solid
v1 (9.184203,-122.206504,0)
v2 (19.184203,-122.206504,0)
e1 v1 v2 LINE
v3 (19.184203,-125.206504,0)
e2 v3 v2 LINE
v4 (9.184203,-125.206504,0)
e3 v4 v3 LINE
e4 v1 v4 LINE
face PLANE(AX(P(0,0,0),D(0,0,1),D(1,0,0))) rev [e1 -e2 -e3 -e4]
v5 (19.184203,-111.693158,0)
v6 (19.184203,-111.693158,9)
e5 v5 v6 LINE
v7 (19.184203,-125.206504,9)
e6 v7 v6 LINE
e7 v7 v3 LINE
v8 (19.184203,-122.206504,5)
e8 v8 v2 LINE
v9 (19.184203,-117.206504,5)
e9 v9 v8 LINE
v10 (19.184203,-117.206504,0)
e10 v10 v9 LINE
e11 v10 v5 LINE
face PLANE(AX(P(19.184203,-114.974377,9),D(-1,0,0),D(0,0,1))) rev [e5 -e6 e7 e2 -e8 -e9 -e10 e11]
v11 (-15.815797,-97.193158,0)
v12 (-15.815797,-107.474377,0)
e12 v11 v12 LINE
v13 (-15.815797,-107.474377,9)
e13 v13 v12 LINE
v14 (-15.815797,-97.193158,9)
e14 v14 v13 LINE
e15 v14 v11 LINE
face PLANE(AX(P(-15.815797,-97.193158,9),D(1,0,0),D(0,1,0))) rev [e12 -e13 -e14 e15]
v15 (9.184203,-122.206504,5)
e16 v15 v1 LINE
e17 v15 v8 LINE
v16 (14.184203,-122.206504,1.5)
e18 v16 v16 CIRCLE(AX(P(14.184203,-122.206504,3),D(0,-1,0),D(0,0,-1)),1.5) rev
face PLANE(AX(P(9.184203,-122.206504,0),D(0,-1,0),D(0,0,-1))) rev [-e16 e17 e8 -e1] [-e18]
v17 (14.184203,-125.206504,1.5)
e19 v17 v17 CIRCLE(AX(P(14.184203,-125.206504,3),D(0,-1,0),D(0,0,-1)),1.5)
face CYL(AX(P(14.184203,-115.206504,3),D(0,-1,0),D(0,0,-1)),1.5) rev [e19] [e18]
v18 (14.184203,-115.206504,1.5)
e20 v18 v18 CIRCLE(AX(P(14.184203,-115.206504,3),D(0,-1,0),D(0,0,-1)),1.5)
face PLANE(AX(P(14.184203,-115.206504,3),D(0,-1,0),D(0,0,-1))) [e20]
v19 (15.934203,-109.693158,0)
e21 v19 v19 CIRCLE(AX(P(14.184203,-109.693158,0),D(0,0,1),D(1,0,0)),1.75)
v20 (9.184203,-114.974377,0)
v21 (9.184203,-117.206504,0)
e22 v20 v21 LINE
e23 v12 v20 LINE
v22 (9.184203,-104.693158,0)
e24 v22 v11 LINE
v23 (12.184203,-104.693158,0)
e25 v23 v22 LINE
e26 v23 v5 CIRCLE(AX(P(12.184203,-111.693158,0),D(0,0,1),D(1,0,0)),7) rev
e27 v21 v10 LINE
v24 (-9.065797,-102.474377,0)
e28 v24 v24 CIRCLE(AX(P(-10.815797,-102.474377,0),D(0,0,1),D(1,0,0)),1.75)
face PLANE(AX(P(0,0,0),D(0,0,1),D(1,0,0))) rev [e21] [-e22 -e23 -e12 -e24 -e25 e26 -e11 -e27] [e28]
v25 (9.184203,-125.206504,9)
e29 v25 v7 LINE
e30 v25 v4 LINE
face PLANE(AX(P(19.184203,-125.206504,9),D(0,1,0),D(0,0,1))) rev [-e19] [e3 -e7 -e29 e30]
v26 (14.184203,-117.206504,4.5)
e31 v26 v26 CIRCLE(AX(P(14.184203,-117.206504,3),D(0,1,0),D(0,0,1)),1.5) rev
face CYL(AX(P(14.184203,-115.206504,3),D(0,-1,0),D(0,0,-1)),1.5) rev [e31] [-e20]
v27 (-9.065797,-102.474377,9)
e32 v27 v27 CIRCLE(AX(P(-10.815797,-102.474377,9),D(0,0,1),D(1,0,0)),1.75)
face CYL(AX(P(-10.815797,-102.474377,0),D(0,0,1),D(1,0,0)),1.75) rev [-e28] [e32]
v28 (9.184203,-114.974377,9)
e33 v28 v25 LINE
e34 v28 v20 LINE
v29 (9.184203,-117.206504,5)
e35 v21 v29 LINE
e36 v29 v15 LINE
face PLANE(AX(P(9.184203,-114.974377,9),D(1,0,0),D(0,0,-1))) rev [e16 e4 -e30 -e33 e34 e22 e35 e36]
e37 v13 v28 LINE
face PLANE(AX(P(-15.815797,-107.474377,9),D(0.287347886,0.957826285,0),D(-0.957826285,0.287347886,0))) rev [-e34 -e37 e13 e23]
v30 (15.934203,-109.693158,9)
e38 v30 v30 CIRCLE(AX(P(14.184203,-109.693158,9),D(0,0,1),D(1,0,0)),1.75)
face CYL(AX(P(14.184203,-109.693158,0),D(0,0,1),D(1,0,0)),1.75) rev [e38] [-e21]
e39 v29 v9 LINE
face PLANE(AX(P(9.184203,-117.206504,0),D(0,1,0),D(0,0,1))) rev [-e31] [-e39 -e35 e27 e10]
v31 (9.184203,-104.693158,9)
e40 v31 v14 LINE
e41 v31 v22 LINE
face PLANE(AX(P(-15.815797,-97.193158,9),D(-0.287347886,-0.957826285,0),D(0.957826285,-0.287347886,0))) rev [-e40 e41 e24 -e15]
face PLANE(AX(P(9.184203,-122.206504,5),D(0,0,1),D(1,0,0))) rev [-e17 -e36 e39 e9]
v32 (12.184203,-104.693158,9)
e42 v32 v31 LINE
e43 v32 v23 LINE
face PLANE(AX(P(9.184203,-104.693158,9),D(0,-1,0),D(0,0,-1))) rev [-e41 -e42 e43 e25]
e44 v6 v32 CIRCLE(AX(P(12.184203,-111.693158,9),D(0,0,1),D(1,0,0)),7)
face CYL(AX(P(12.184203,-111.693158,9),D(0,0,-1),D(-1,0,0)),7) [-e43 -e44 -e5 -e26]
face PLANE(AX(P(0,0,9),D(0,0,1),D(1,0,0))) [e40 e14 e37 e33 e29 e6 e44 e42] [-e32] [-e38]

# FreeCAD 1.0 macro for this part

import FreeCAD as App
import Part
import Sketcher
from FreeCAD import Vector


def edges_at(feature, points):
    """Names of the edges that pass closest to the given points."""
    edges = feature.Shape.Edges
    near = lambda p: min(range(len(edges)), key=lambda i: edges[i].distToShape(Part.Vertex(*p))[0])
    return sorted({f"Edge{near(p) + 1}" for p in points})


def add_polygon(sketch, points):
    """Adds a closed chain of lines whose ends are joined by coincident constraints."""
    first, n = sketch.GeometryCount, len(points)
    for a, b in zip(points, points[1:] + points[:1]):
        sketch.addGeometry(Part.LineSegment(App.Vector(*a, 0), App.Vector(*b, 0)), False)
    for i in range(n):
        sketch.addConstraint(Sketcher.Constraint("Coincident", first + i, 2, first + (i + 1) % n, 1))

doc = App.newDocument("Part")
body = doc.addObject("PartDesign::Body", "Body")

# Sketch on XY plane
sketch1 = doc.addObject("Sketcher::SketchObject", "Sketch")
body.addObject(sketch1)
sketch1.AttachmentSupport = (doc.XY_Plane, [""])
sketch1.MapMode = "FlatFace"
add_polygon(sketch1, [(-16, -97), (-16, -107), (9, -115), (9, -125), (19, -125), (19, -105), (9, -105)])  # lines 0-6
sketch1.addConstraint([
    Sketcher.Constraint("Vertical", 0),
    Sketcher.Constraint("Vertical", 2),
    Sketcher.Constraint("Horizontal", 3),
    Sketcher.Constraint("Vertical", 4),
    Sketcher.Constraint("Horizontal", 5),
    Sketcher.Constraint("Parallel", 1, 6),
    Sketcher.Constraint("Vertical", 2, 2, 5, 2),
    Sketcher.Constraint("DistanceX", 3, 1, 3, 2, 10.0),
    Sketcher.Constraint("DistanceX", 0, 2, 1, 2, 25.0),
    Sketcher.Constraint("DistanceY", 1, 2, 0, 2, 7.5),
    Sketcher.Constraint("DistanceY", 0, 2, 0, 1, 10.281219),
    Sketcher.Constraint("DistanceY", 2, 2, 2, 1, 10.232127),
    Sketcher.Constraint("DistanceX", 0, 2, -1, 1, 15.815797),
    Sketcher.Constraint("DistanceY", 0, 2, -1, 1, 107.474377),
])
pad1 = doc.addObject("PartDesign::Pad", "Pad")
body.addObject(pad1)
pad1.Profile = sketch1
pad1.Length = 9

# Sketch on XY plane
sketch2 = doc.addObject("Sketcher::SketchObject", "Sketch001")
body.addObject(sketch2)
sketch2.AttachmentSupport = (doc.XY_Plane, [""])
sketch2.MapMode = "FlatFace"
sketch2.AttachmentOffset = App.Placement(Vector(0, 0, 9), App.Rotation())
sketch2.addGeometry([
    Part.Circle(Vector(14.2, -109.7, 0), Vector(0, 0, 1), 1.8),
    Part.Circle(Vector(-10.8, -102.5, 0), Vector(0, 0, 1), 1.8),
], False)
sketch2.addConstraint([
    Sketcher.Constraint("Equal", 0, 1),
    Sketcher.Constraint("Diameter", 0, 3.5),
    Sketcher.Constraint("DistanceX", 1, 3, 0, 3, 25.0),
    Sketcher.Constraint("DistanceY", 0, 3, 1, 3, 7.218781),
    Sketcher.Constraint("DistanceX", -1, 1, 0, 3, 14.184203),
    Sketcher.Constraint("DistanceY", 0, 3, -1, 1, 109.693158),
])
pocket1 = doc.addObject("PartDesign::Pocket", "Pocket")
body.addObject(pocket1)
pocket1.Profile = sketch2
pocket1.Length = 9

# Sketch on XZ plane
sketch3 = doc.addObject("Sketcher::SketchObject", "Sketch002")
body.addObject(sketch3)
sketch3.AttachmentSupport = (doc.XZ_Plane, [""])
sketch3.MapMode = "FlatFace"
sketch3.AttachmentOffset = App.Placement(Vector(0, 0, 125.206504), App.Rotation())
sketch3.addGeometry(Part.Circle(Vector(14.2, 3, 0), Vector(0, 0, 1), 1.5), False)
sketch3.addConstraint([
    Sketcher.Constraint("Diameter", 0, 3.0),
    Sketcher.Constraint("DistanceY", -1, 1, 0, 3, 3.0),
    Sketcher.Constraint("DistanceX", -1, 1, 0, 3, 14.184203),
])
pocket2 = doc.addObject("PartDesign::Pocket", "Pocket001")
body.addObject(pocket2)
pocket2.Profile = sketch3
pocket2.Length = 10

# Sketch on YZ plane
sketch4 = doc.addObject("Sketcher::SketchObject", "Sketch003")
body.addObject(sketch4)
sketch4.AttachmentSupport = (doc.YZ_Plane, [""])
sketch4.MapMode = "FlatFace"
sketch4.AttachmentOffset = App.Placement(Vector(0, 0, 19.184203), App.Rotation())
add_polygon(sketch4, [(-117, 5), (-122, 5), (-122, 0), (-117, 0)])  # lines 0-3
sketch4.addConstraint([
    Sketcher.Constraint("Horizontal", 0),
    Sketcher.Constraint("Vertical", 1),
    Sketcher.Constraint("Horizontal", 2),
    Sketcher.Constraint("Vertical", 3),
    Sketcher.Constraint("PointOnObject", 1, 2, -1),
    Sketcher.Constraint("Equal", 2, 1),
    Sketcher.Constraint("DistanceX", 0, 2, 0, 1, 5.0),
    Sketcher.Constraint("DistanceX", 0, 2, -1, 1, 122.206504),
])
pocket3 = doc.addObject("PartDesign::Pocket", "Pocket002")
body.addObject(pocket3)
pocket3.Profile = sketch4
pocket3.Length = 10
doc.recompute()

fillet = doc.addObject("PartDesign::Fillet", "Fillet")
body.addObject(fillet)
fillet.Base = (pocket3, edges_at(pocket3, [(19.184, -104.693, 4.5)]))
fillet.Radius = 7

doc.recompute()
